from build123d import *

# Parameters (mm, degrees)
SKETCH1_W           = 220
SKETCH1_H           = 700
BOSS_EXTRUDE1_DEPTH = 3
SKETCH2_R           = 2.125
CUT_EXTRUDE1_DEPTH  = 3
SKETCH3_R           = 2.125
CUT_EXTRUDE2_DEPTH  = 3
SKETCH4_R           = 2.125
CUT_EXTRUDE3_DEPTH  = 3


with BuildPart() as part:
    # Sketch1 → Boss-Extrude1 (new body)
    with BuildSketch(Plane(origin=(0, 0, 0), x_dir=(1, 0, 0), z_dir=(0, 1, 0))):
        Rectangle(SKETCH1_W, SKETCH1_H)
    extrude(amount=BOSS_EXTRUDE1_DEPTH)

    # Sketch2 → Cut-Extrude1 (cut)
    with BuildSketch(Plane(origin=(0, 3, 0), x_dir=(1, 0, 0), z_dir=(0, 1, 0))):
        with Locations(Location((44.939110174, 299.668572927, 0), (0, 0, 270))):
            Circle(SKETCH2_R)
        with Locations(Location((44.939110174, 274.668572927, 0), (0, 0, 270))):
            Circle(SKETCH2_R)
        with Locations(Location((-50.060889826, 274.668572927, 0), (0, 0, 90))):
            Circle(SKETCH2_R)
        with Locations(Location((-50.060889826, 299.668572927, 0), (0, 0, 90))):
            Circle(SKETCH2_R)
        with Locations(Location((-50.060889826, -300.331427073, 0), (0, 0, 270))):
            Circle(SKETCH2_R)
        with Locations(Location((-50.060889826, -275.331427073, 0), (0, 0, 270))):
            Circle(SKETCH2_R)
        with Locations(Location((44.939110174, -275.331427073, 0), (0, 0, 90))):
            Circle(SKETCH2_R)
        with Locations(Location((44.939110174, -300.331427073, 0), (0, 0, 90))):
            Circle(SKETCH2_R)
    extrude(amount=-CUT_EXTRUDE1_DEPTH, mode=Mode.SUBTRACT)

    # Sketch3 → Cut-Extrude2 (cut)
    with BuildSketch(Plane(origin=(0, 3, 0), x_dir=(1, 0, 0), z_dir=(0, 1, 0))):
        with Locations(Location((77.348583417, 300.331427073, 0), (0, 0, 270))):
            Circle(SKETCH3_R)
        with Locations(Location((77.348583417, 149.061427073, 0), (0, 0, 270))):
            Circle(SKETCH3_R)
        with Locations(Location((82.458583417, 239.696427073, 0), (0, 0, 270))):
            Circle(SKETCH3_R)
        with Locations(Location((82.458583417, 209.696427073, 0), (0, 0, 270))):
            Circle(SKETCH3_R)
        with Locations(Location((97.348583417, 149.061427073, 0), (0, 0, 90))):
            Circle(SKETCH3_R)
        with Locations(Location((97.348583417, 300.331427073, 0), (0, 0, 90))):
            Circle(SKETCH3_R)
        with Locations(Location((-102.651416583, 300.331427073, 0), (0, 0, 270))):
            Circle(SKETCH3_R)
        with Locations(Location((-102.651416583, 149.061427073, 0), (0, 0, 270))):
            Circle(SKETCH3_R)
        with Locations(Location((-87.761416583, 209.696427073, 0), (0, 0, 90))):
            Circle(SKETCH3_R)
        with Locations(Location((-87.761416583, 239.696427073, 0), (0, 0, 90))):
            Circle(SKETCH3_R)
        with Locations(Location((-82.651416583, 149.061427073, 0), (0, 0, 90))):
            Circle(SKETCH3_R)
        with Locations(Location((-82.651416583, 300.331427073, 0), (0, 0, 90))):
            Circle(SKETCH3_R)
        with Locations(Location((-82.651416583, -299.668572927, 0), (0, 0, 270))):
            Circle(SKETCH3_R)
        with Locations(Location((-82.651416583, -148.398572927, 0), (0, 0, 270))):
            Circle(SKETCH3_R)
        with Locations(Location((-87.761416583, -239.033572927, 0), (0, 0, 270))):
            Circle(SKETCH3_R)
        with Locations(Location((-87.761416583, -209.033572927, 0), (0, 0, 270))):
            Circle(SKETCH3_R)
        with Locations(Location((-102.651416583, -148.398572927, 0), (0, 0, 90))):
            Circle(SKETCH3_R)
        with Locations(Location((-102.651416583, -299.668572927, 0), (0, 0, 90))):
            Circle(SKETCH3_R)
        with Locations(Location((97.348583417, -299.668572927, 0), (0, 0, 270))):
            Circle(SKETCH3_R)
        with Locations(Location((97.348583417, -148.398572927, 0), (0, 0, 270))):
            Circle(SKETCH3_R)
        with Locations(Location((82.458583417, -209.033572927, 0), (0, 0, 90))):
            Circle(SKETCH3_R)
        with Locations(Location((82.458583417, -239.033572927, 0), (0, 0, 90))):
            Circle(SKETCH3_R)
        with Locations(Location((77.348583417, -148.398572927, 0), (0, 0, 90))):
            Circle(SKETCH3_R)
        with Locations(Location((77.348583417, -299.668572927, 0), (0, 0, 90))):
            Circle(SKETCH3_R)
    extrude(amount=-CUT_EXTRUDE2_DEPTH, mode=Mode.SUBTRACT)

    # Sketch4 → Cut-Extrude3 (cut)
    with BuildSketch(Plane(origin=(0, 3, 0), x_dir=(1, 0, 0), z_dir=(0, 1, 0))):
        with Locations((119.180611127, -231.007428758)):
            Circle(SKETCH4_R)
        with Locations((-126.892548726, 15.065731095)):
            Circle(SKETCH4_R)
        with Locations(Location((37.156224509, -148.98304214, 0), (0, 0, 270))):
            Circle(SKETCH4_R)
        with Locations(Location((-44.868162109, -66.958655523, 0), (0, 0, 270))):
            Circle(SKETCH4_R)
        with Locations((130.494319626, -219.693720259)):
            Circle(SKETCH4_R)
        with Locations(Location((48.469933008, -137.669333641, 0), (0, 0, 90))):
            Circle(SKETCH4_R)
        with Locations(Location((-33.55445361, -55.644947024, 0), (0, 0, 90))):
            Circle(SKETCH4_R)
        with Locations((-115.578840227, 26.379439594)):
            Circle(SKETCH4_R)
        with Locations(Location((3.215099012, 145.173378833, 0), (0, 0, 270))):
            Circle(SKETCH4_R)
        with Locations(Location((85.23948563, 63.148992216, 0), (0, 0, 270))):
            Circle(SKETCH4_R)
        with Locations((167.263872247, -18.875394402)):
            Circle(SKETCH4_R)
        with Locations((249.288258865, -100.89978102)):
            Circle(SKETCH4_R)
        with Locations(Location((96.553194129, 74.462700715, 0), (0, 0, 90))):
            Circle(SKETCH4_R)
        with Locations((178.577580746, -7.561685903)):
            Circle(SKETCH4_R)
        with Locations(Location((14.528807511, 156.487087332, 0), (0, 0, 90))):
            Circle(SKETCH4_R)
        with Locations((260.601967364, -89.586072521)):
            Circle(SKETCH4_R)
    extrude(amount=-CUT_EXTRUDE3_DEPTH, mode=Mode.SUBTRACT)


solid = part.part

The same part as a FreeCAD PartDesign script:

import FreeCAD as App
import Part
import Sketcher

V = App.Vector
Q = App.Units.Quantity

doc = App.newDocument("Part")
params = doc.addObject("Spreadsheet::Sheet", "Params")
for row, (alias, value) in enumerate([
    ("sketch1_width", "220 mm"),
    ("sketch1_height", "700 mm"),
    ("pad1_length", "3 mm"),
    ("sketch2_diameter", "4.25 mm"),
    ("pocket1_length", "3 mm"),
    ("sketch3_diameter", "4.25 mm"),
    ("pocket2_length", "3 mm"),
    ("sketch4_diameter", "4.25 mm"),
    ("pocket3_length", "3 mm"),
], start=1):
    params.set(f"A{row}", alias)
    params.set(f"B{row}", "=" + value)
    params.setAlias(f"B{row}", alias)

body = doc.addObject("PartDesign::Body", "Body")

# Sketch on XZ plane
sketch1 = body.newObject("Sketcher::SketchObject", "Sketch")
sketch1.AttachmentSupport = (doc.getObject("XZ_Plane"), [""])
sketch1.MapMode = "FlatFace"
sketch1.addGeometry([
    Part.LineSegment(V(-110, -350, 0), V(-110, 350, 0)),
    Part.LineSegment(V(-110, 350, 0), V(110, 350, 0)),
    Part.LineSegment(V(110, 350, 0), V(110, -350, 0)),
    Part.LineSegment(V(110, -350, 0), V(-110, -350, 0)),
], False)
sketch1.addConstraint([
    Sketcher.Constraint("Coincident", 0, 2, 1, 1),
    Sketcher.Constraint("Coincident", 1, 2, 2, 1),
    Sketcher.Constraint("Coincident", 2, 2, 3, 1),
    Sketcher.Constraint("Coincident", 3, 2, 0, 1),
    Sketcher.Constraint("Vertical", 0),
    Sketcher.Constraint("Horizontal", 1),
    Sketcher.Constraint("Vertical", 2),
    Sketcher.Constraint("Horizontal", 3),
    Sketcher.Constraint("Symmetric", 0, 2, 2, 2, -1, 1),
    Sketcher.Constraint("DistanceX", 1, 1, 1, 2, Q("220 mm")),
    Sketcher.Constraint("DistanceY", 0, 1, 0, 2, Q("700 mm")),
])
sketch1.setExpression("Constraints[9]", "Params.sketch1_width")
sketch1.setExpression("Constraints[10]", "Params.sketch1_height")
pad1 = body.newObject("PartDesign::Pad", "Pad")
pad1.Profile = sketch1
pad1.setExpression("Length", "Params.pad1_length")
pad1.Reversed = True

# Sketch on XZ plane
sketch2 = body.newObject("Sketcher::SketchObject", "Sketch001")
sketch2.AttachmentSupport = (doc.getObject("XZ_Plane"), [""])
sketch2.MapMode = "FlatFace"
sketch2.AttachmentOffset = App.Placement(V(0, 0, -3), App.Rotation())
sketch2.addGeometry([
    Part.Circle(V(44.9, -299.7, 0), V(0, 0, 1), 2.1),  # 0
    Part.Circle(V(44.9, -274.7, 0), V(0, 0, 1), 2.1),  # 1
    Part.Circle(V(-50.1, -274.7, 0), V(0, 0, 1), 2.1),  # 2
    Part.Circle(V(-50.1, -299.7, 0), V(0, 0, 1), 2.1),  # 3
    Part.Circle(V(-50.1, 300.3, 0), V(0, 0, 1), 2.1),  # 4
    Part.Circle(V(-50.1, 275.3, 0), V(0, 0, 1), 2.1),  # 5
    Part.Circle(V(44.9, 275.3, 0), V(0, 0, 1), 2.1),  # 6
    Part.Circle(V(44.9, 300.3, 0), V(0, 0, 1), 2.1),  # 7
], False)
sketch2.addConstraint([
    Sketcher.Constraint("Equal", 0, 1),
    Sketcher.Constraint("Equal", 1, 2),
    Sketcher.Constraint("Equal", 2, 3),
    Sketcher.Constraint("Equal", 3, 4),
    Sketcher.Constraint("Equal", 4, 5),
    Sketcher.Constraint("Equal", 5, 6),
    Sketcher.Constraint("Equal", 6, 7),
    Sketcher.Constraint("Horizontal", 1, 3, 2, 3),
    Sketcher.Constraint("Horizontal", 0, 3, 3, 3),
    Sketcher.Constraint("Horizontal", 5, 3, 6, 3),
    Sketcher.Constraint("Horizontal", 4, 3, 7, 3),
    Sketcher.Constraint("Vertical", 0, 3, 1, 3),
    Sketcher.Constraint("Vertical", 2, 3, 3, 3),
    Sketcher.Constraint("Vertical", 3, 3, 4, 3),
    Sketcher.Constraint("Vertical", 4, 3, 5, 3),
    Sketcher.Constraint("Vertical", 1, 3, 6, 3),
    Sketcher.Constraint("Vertical", 6, 3, 7, 3),
    Sketcher.Constraint("Diameter", 0, Q("4.25 mm")),
    Sketcher.Constraint("DistanceY", 0, 3, 1, 3, Q("25 mm")),
    Sketcher.Constraint("DistanceX", 2, 3, 1, 3, Q("95 mm")),
    Sketcher.Constraint("DistanceY", 2, 3, 4, 3, Q("575 mm")),
    Sketcher.Constraint("DistanceY", 5, 3, 4, 3, Q("25 mm")),
    Sketcher.Constraint("DistanceX", -1, 1, 0, 3, Q("44.93911 mm")),
    Sketcher.Constraint("DistanceY", 0, 3, -1, 1, Q("299.668573 mm")),
])
sketch2.setExpression("Constraints[17]", "Params.sketch2_diameter")
pocket1 = body.newObject("PartDesign::Pocket", "Pocket")
pocket1.Profile = sketch2
pocket1.setExpression("Length", "Params.pocket1_length")
pocket1.Reversed = True

# Sketch on XZ plane
sketch3 = body.newObject("Sketcher::SketchObject", "Sketch002")
sketch3.AttachmentSupport = (doc.getObject("XZ_Plane"), [""])
sketch3.MapMode = "FlatFace"
sketch3.AttachmentOffset = App.Placement(V(0, 0, -3), App.Rotation())
sketch3.addGeometry([
    Part.Circle(V(77.3, -300.3, 0), V(0, 0, 1), 2.1),  # 0
    Part.Circle(V(77.3, -149.1, 0), V(0, 0, 1), 2.1),  # 1
    Part.Circle(V(82.5, -239.7, 0), V(0, 0, 1), 2.1),  # 2
    Part.Circle(V(82.5, -209.7, 0), V(0, 0, 1), 2.1),  # 3
    Part.Circle(V(97.3, -149.1, 0), V(0, 0, 1), 2.1),  # 4
    Part.Circle(V(97.3, -300.3, 0), V(0, 0, 1), 2.1),  # 5
    Part.Circle(V(-102.7, -300.3, 0), V(0, 0, 1), 2.1),  # 6
    Part.Circle(V(-102.7, -149.1, 0), V(0, 0, 1), 2.1),  # 7
    Part.Circle(V(-87.8, -209.7, 0), V(0, 0, 1), 2.1),  # 8
    Part.Circle(V(-87.8, -239.7, 0), V(0, 0, 1), 2.1),  # 9
    Part.Circle(V(-82.7, -149.1, 0), V(0, 0, 1), 2.1),  # 10
    Part.Circle(V(-82.7, -300.3, 0), V(0, 0, 1), 2.1),  # 11
    Part.Circle(V(-82.7, 299.7, 0), V(0, 0, 1), 2.1),  # 12
    Part.Circle(V(-82.7, 148.4, 0), V(0, 0, 1), 2.1),  # 13
    Part.Circle(V(-87.8, 239, 0), V(0, 0, 1), 2.1),  # 14
    Part.Circle(V(-87.8, 209, 0), V(0, 0, 1), 2.1),  # 15
    Part.Circle(V(-102.7, 148.4, 0), V(0, 0, 1), 2.1),  # 16
    Part.Circle(V(-102.7, 299.7, 0), V(0, 0, 1), 2.1),  # 17
    Part.Circle(V(97.3, 299.7, 0), V(0, 0, 1), 2.1),  # 18
    Part.Circle(V(97.3, 148.4, 0), V(0, 0, 1), 2.1),  # 19
    Part.Circle(V(82.5, 209, 0), V(0, 0, 1), 2.1),  # 20
    Part.Circle(V(82.5, 239, 0), V(0, 0, 1), 2.1),  # 21
    Part.Circle(V(77.3, 148.4, 0), V(0, 0, 1), 2.1),  # 22
    Part.Circle(V(77.3, 299.7, 0), V(0, 0, 1), 2.1),  # 23
], False)
sketch3.addConstraint([
    Sketcher.Constraint("Equal", 0, 1),
    Sketcher.Constraint("Equal", 1, 2),
    Sketcher.Constraint("Equal", 2, 3),
    Sketcher.Constraint("Equal", 3, 4),
    Sketcher.Constraint("Equal", 4, 5),
    Sketcher.Constraint("Equal", 5, 6),
    Sketcher.Constraint("Equal", 6, 7),
    Sketcher.Constraint("Equal", 7, 8),
    Sketcher.Constraint("Equal", 8, 9),
    Sketcher.Constraint("Equal", 9, 10),
    Sketcher.Constraint("Equal", 10, 11),
    Sketcher.Constraint("Equal", 11, 12),
    Sketcher.Constraint("Equal", 12, 13),
    Sketcher.Constraint("Equal", 13, 14),
    Sketcher.Constraint("Equal", 14, 15),
    Sketcher.Constraint("Equal", 15, 16),
    Sketcher.Constraint("Equal", 16, 17),
    Sketcher.Constraint("Equal", 17, 18),
    Sketcher.Constraint("Equal", 18, 19),
    Sketcher.Constraint("Equal", 19, 20),
    Sketcher.Constraint("Equal", 20, 21),
    Sketcher.Constraint("Equal", 21, 22),
    Sketcher.Constraint("Equal", 22, 23),
    Sketcher.Constraint("Horizontal", 1, 3, 4, 3),
    Sketcher.Constraint("Horizontal", 0, 3, 5, 3),
    Sketcher.Constraint("Horizontal", 5, 3, 6, 3),
    Sketcher.Constraint("Horizontal", 4, 3, 7, 3),
    Sketcher.Constraint("Horizontal", 3, 3, 8, 3),
    Sketcher.Constraint("Horizontal", 2, 3, 9, 3),
    Sketcher.Constraint("Horizontal", 7, 3, 10, 3),
    Sketcher.Constraint("Horizontal", 6, 3, 11, 3),
    Sketcher.Constraint("Horizontal", 13, 3, 16, 3),
    Sketcher.Constraint("Horizontal", 12, 3, 17, 3),
    Sketcher.Constraint("Horizontal", 17, 3, 18, 3),
    Sketcher.Constraint("Horizontal", 16, 3, 19, 3),
    Sketcher.Constraint("Horizontal", 15, 3, 20, 3),
    Sketcher.Constraint("Horizontal", 14, 3, 21, 3),
    Sketcher.Constraint("Horizontal", 19, 3, 22, 3),
    Sketcher.Constraint("Horizontal", 18, 3, 23, 3),
    Sketcher.Constraint("Vertical", 0, 3, 1, 3),
    Sketcher.Constraint("Vertical", 2, 3, 3, 3),
    Sketcher.Constraint("Vertical", 4, 3, 5, 3),
    Sketcher.Constraint("Vertical", 6, 3, 7, 3),
    Sketcher.Constraint("Vertical", 8, 3, 9, 3),
    Sketcher.Constraint("Vertical", 10, 3, 11, 3),
    Sketcher.Constraint("Vertical", 11, 3, 12, 3),
    Sketcher.Constraint("Vertical", 12, 3, 13, 3),
    Sketcher.Constraint("Vertical", 9, 3, 14, 3),
    Sketcher.Constraint("Vertical", 14, 3, 15, 3),
    Sketcher.Constraint("Vertical", 7, 3, 16, 3),
    Sketcher.Constraint("Vertical", 16, 3, 17, 3),
    Sketcher.Constraint("Vertical", 5, 3, 18, 3),
    Sketcher.Constraint("Vertical", 18, 3, 19, 3),
    Sketcher.Constraint("Vertical", 3, 3, 20, 3),
    Sketcher.Constraint("Vertical", 20, 3, 21, 3),
    Sketcher.Constraint("Vertical", 1, 3, 22, 3),
    Sketcher.Constraint("Vertical", 22, 3, 23, 3),
    Sketcher.Constraint("Diameter", 0, Q("4.25 mm")),
    Sketcher.Constraint("DistanceY", 2, 3, 3, 3, Q("30 mm")),
    Sketcher.Constraint("DistanceX", 1, 3, 4, 3, Q("20 mm")),
    Sketcher.Constraint("DistanceX", 6, 3, 0, 3, Q("180 mm")),
    Sketcher.Constraint("DistanceX", 7, 3, 10, 3, Q("20 mm")),
    Sketcher.Constraint("DistanceY", 15, 3, 14, 3, Q("30 mm")),
    Sketcher.Constraint("DistanceY", 0, 3, 1, 3, Q("151.27 mm")),
    Sketcher.Constraint("DistanceX", 0, 3, 2, 3, Q("5.11 mm")),
    Sketcher.Constraint("DistanceX", 7, 3, 8, 3, Q("14.89 mm")),
    Sketcher.Constraint("DistanceY", 10, 3, 12, 3, Q("448.73 mm")),
    Sketcher.Constraint("DistanceY", 13, 3, 12, 3, Q("151.27 mm")),
    Sketcher.Constraint("DistanceY", 0, 3, 2, 3, Q("60.635 mm")),
    Sketcher.Constraint("DistanceY", 14, 3, 12, 3, Q("60.635 mm")),
    Sketcher.Constraint("DistanceX", -1, 1, 0, 3, Q("77.348583 mm")),
    Sketcher.Constraint("DistanceY", 0, 3, -1, 1, Q("300.331427 mm")),
])
sketch3.setExpression("Constraints[57]", "Params.sketch3_diameter")
pocket2 = body.newObject("PartDesign::Pocket", "Pocket001")
pocket2.Profile = sketch3
pocket2.setExpression("Length", "Params.pocket2_length")
pocket2.Reversed = True

# Sketch on XZ plane
sketch4 = body.newObject("Sketcher::SketchObject", "Sketch003")
sketch4.AttachmentSupport = (doc.getObject("XZ_Plane"), [""])
sketch4.MapMode = "FlatFace"
sketch4.AttachmentOffset = App.Placement(V(0, 0, -3), App.Rotation())
sketch4.addGeometry([
    Part.Circle(V(119.2, 231, 0), V(0, 0, 1), 2.1),  # 0
    Part.Circle(V(-126.9, -15.1, 0), V(0, 0, 1), 2.1),  # 1
    Part.Circle(V(37.2, 149, 0), V(0, 0, 1), 2.1),  # 2
    Part.Circle(V(-44.9, 67, 0), V(0, 0, 1), 2.1),  # 3
    Part.Circle(V(130.5, 219.7, 0), V(0, 0, 1), 2.1),  # 4
    Part.Circle(V(48.5, 137.7, 0), V(0, 0, 1), 2.1),  # 5
    Part.Circle(V(-33.6, 55.6, 0), V(0, 0, 1), 2.1),  # 6
    Part.Circle(V(-115.6, -26.4, 0), V(0, 0, 1), 2.1),  # 7
    Part.Circle(V(3.2, -145.2, 0), V(0, 0, 1), 2.1),  # 8
    Part.Circle(V(85.2, -63.1, 0), V(0, 0, 1), 2.1),  # 9
    Part.Circle(V(167.3, 18.9, 0), V(0, 0, 1), 2.1),  # 10
    Part.Circle(V(249.3, 100.9, 0), V(0, 0, 1), 2.1),  # 11
    Part.Circle(V(96.6, -74.5, 0), V(0, 0, 1), 2.1),  # 12
    Part.Circle(V(178.6, 7.6, 0), V(0, 0, 1), 2.1),  # 13
    Part.Circle(V(14.5, -156.5, 0), V(0, 0, 1), 2.1),  # 14
    Part.Circle(V(260.6, 89.6, 0), V(0, 0, 1), 2.1),  # 15
], False)
sketch4.addConstraint([
    Sketcher.Constraint("Equal", 0, 1),
    Sketcher.Constraint("Equal", 1, 2),
    Sketcher.Constraint("Equal", 2, 3),
    Sketcher.Constraint("Equal", 3, 4),
    Sketcher.Constraint("Equal", 4, 5),
    Sketcher.Constraint("Equal", 5, 6),
    Sketcher.Constraint("Equal", 6, 7),
    Sketcher.Constraint("Equal", 7, 8),
    Sketcher.Constraint("Equal", 8, 9),
    Sketcher.Constraint("Equal", 9, 10),
    Sketcher.Constraint("Equal", 10, 11),
    Sketcher.Constraint("Equal", 11, 12),
    Sketcher.Constraint("Equal", 12, 13),
    Sketcher.Constraint("Equal", 13, 14),
    Sketcher.Constraint("Equal", 14, 15),
    Sketcher.Constraint("Diameter", 0, Q("4.25 mm")),
    Sketcher.Constraint("DistanceX", -1, 1, 8, 3, Q("3.215099 mm")),
    Sketcher.Constraint("DistanceY", 12, 3, -1, 1, Q("74.462701 mm")),
    Sketcher.Constraint("DistanceX", -1, 1, 0, 3, Q("119.180611 mm")),
    Sketcher.Constraint("DistanceY", -1, 1, 0, 3, Q("231.007429 mm")),
    Sketcher.Constraint("DistanceX", 1, 3, -1, 1, Q("126.892549 mm")),
    Sketcher.Constraint("DistanceY", 1, 3, -1, 1, Q("15.065731 mm")),
    Sketcher.Constraint("DistanceX", -1, 1, 4, 3, Q("130.49432 mm")),
    Sketcher.Constraint("DistanceY", -1, 1, 4, 3, Q("219.69372 mm")),
    Sketcher.Constraint("DistanceX", 7, 3, -1, 1, Q("115.57884 mm")),
    Sketcher.Constraint("DistanceY", 7, 3, -1, 1, Q("26.37944 mm")),
    Sketcher.Constraint("DistanceY", 8, 3, -1, 1, Q("145.173379 mm")),
    Sketcher.Constraint("DistanceX", -1, 1, 11, 3, Q("249.288259 mm")),
    Sketcher.Constraint("DistanceY", -1, 1, 11, 3, Q("100.899781 mm")),
    Sketcher.Constraint("DistanceX", -1, 1, 13, 3, Q("178.577581 mm")),
    Sketcher.Constraint("DistanceY", 2, 3, 4, 3, Q("70.710678 mm")),
    Sketcher.Constraint("DistanceX", 3, 3, 4, 3, Q("175.362482 mm")),
    Sketcher.Constraint("DistanceX", 2, 3, 5, 3, Q("11.313708 mm")),
    Sketcher.Constraint("DistanceY", 5, 3, 2, 3, Q("11.313708 mm")),
    Sketcher.Constraint("DistanceY", 3, 3, 5, 3, Q("70.710678 mm")),
    Sketcher.Constraint("DistanceX", 5, 3, 0, 3, Q("70.710678 mm")),
    Sketcher.Constraint("DistanceX", 3, 3, 6, 3, Q("11.313708 mm")),
    Sketcher.Constraint("DistanceY", 6, 3, 3, 3, Q("11.313708 mm")),
    Sketcher.Constraint("DistanceX", 6, 3, 9, 3, Q("118.793939 mm")),
    Sketcher.Constraint("DistanceY", 9, 3, 6, 3, Q("118.793939 mm")),
    Sketcher.Constraint("DistanceX", 5, 3, 10, 3, Q("118.793939 mm")),
    Sketcher.Constraint("DistanceY", 10, 3, 5, 3, Q("118.793939 mm")),
    Sketcher.Constraint("DistanceX", 9, 3, 12, 3, Q("11.313708 mm")),
    Sketcher.Constraint("DistanceY", 13, 3, 10, 3, Q("11.313708 mm")),
    Sketcher.Constraint("DistanceX", 8, 3, 14, 3, Q("11.313708 mm")),
    Sketcher.Constraint("DistanceY", 14, 3, 8, 3, Q("11.313708 mm")),
    Sketcher.Constraint("DistanceX", 11, 3, 15, 3, Q("11.313708 mm")),
    Sketcher.Constraint("DistanceY", 15, 3, 11, 3, Q("11.313708 mm")),
])
sketch4.setExpression("Constraints[15]", "Params.sketch4_diameter")
pocket3 = body.newObject("PartDesign::Pocket", "Pocket002")
pocket3.Profile = sketch4
pocket3.setExpression("Length", "Params.pocket3_length")
pocket3.Reversed = True

doc.recompute()
